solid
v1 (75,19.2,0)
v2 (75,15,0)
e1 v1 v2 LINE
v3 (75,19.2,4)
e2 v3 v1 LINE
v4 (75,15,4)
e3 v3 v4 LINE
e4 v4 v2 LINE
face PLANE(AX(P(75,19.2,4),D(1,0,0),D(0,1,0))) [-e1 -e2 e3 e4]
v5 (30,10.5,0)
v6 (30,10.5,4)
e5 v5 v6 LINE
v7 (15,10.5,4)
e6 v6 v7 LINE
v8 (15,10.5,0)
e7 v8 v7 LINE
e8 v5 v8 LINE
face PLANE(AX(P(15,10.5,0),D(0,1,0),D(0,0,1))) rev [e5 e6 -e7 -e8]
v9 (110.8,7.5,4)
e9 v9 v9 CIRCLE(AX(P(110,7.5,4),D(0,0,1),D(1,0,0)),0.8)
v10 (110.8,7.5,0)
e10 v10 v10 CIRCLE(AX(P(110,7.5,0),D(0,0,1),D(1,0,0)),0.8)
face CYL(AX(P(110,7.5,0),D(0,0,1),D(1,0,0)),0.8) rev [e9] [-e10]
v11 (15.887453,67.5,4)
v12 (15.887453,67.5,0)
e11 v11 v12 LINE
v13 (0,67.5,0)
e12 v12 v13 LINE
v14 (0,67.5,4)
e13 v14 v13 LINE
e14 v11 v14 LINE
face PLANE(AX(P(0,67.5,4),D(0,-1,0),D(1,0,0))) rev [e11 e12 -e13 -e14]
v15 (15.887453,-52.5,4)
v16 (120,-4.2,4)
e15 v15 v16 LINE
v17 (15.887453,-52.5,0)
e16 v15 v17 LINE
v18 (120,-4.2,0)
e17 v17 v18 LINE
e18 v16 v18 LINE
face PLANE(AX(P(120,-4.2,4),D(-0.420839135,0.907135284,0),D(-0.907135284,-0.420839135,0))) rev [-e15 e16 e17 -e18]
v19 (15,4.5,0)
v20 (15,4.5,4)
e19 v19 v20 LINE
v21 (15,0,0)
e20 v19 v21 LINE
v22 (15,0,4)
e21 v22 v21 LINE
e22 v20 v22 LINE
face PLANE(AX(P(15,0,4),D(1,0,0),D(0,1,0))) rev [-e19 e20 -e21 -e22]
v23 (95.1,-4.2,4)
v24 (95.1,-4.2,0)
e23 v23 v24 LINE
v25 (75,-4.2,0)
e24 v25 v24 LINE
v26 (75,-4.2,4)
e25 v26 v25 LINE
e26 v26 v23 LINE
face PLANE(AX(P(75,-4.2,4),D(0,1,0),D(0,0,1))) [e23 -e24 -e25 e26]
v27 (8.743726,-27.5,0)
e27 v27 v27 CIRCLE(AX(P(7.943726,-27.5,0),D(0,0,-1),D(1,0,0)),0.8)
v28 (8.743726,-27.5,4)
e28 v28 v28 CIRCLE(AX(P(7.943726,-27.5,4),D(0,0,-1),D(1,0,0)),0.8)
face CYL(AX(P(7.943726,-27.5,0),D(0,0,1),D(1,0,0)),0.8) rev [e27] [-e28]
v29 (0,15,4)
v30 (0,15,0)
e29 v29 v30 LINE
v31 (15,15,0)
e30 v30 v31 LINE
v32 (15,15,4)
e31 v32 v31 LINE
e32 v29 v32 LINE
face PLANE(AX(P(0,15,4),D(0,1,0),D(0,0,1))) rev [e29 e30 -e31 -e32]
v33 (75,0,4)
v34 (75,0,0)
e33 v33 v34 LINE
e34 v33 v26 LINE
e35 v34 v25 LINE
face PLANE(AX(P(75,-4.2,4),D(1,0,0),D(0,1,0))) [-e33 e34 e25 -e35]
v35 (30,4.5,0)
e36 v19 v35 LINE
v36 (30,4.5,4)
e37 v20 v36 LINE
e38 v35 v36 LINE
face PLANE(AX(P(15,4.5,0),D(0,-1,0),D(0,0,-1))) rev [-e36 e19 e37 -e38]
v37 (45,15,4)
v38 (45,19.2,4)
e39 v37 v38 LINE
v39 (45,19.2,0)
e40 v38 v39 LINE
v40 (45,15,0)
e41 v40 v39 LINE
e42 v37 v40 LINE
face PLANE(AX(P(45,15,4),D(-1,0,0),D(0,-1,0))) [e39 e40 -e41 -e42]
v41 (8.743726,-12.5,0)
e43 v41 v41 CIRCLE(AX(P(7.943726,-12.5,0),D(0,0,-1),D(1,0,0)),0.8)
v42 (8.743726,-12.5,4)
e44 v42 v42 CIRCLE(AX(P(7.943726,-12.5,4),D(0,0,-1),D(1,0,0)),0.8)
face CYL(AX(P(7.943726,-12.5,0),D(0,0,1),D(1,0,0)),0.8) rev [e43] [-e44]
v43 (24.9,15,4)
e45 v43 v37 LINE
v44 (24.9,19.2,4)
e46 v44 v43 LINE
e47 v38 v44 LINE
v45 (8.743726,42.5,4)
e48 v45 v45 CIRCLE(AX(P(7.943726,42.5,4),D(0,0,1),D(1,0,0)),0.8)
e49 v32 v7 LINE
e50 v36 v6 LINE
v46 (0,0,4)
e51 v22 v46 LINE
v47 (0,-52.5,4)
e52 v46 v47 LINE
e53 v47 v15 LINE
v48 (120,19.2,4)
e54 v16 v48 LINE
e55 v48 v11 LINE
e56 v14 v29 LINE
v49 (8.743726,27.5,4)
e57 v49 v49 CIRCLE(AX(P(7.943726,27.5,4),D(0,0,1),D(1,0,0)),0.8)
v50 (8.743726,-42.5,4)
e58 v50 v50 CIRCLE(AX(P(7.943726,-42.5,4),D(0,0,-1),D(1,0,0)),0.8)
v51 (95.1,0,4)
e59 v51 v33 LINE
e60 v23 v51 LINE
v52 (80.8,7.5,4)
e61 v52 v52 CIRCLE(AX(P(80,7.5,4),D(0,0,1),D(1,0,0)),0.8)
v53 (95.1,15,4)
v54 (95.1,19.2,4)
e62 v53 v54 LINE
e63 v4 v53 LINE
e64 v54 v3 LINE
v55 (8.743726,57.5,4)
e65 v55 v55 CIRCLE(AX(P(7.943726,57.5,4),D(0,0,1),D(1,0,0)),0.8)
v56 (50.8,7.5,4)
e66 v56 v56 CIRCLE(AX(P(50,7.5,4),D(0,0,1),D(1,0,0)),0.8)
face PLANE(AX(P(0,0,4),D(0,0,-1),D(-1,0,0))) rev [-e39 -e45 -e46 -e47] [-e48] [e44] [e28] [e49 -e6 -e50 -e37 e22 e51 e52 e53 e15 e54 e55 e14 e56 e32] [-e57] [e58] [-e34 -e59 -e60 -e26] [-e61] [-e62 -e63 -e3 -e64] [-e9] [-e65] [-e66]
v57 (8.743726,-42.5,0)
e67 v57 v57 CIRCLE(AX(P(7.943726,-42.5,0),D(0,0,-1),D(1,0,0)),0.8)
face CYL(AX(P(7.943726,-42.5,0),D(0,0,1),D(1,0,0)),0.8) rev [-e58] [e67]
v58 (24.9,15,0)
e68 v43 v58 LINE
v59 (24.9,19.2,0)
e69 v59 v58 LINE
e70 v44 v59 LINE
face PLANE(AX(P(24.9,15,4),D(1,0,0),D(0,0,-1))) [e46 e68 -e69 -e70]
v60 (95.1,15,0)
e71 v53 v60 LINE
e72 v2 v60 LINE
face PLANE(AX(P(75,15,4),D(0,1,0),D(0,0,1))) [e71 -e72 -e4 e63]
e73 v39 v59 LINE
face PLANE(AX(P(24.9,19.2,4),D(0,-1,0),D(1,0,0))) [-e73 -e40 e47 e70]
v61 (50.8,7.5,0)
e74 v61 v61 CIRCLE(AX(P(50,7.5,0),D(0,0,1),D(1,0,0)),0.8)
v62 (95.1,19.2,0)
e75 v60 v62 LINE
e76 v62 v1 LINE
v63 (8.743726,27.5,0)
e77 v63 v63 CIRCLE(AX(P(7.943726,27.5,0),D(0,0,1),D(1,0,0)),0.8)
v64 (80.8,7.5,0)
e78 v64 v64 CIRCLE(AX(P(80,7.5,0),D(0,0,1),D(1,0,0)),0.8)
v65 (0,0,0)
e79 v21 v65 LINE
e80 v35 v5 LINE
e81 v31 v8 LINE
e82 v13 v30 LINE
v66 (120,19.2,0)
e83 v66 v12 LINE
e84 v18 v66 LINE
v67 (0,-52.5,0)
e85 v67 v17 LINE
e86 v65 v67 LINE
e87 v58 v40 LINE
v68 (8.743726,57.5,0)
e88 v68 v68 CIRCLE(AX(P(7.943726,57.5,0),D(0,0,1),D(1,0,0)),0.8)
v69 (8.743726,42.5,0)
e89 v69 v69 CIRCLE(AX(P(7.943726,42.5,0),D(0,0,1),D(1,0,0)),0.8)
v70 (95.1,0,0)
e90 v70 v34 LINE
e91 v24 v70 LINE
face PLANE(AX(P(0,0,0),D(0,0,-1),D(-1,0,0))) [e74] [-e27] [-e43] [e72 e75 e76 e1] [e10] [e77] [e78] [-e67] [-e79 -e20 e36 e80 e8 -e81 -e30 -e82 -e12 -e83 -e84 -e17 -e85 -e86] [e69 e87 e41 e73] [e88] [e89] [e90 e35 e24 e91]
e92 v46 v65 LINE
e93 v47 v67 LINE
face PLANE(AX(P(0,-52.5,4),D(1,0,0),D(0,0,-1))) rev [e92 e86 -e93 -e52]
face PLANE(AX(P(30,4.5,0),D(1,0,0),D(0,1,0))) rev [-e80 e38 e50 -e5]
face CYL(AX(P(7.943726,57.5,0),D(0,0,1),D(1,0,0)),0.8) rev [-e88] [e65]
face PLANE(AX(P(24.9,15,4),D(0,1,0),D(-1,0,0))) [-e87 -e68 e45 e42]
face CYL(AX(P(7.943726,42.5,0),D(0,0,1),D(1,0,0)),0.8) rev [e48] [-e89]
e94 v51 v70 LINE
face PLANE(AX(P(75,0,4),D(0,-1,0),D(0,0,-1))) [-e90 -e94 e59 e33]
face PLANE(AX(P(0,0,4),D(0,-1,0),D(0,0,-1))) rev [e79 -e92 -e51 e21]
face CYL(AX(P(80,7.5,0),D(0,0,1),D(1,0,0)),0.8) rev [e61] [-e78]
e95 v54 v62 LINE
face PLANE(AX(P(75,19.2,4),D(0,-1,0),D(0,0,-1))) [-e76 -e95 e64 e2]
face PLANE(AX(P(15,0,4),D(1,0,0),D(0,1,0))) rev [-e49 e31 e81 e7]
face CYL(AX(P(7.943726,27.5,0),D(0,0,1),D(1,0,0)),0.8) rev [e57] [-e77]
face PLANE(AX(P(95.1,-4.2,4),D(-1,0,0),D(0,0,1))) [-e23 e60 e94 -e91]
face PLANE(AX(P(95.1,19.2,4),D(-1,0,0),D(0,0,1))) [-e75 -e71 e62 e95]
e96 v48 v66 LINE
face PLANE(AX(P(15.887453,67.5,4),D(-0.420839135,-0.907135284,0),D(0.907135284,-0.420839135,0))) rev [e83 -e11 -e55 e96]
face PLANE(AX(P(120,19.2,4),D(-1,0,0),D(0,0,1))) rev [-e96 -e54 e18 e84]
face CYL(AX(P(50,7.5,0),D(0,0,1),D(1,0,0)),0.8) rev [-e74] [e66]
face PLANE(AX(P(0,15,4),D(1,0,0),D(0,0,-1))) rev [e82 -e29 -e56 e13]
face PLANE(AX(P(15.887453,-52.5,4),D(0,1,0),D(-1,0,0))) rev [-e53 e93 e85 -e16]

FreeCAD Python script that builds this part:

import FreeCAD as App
import Part
import Sketcher

V = App.Vector


def add_polygon(sketch, points):
    """Adds a closed chain of lines whose ends are joined by coincident constraints."""
    first, n = sketch.GeometryCount, len(points)
    for a, b in zip(points, points[1:] + points[:1]):
        sketch.addGeometry(Part.LineSegment(App.Vector(*a, 0), App.Vector(*b, 0)), False)
    for i in range(n):
        sketch.addConstraint(Sketcher.Constraint("Coincident", first + i, 2, first + (i + 1) % n, 1))

doc = App.newDocument("Part")
body = doc.addObject("PartDesign::Body", "Body")

# Sketch on XY plane
sketch1 = body.newObject("Sketcher::SketchObject", "Sketch")
sketch1.AttachmentSupport = (doc.getObject("XY_Plane"), [""])
sketch1.MapMode = "FlatFace"
add_polygon(sketch1, [(0, 67.5), (0, 15), (15, 15), (15, 0), (0, 0), (0, -52.5), (15.887453, -52.5), (120, -4.2), (120, 19.2), (15.887453, 67.5)])  # lines 0-9
add_polygon(sketch1, [(75, -4.2), (75, 0), (95.1, 0), (95.1, -4.2)])  # lines 10-13
add_polygon(sketch1, [(75, 15), (75, 19.2), (95.1, 19.2), (95.1, 15)])  # lines 14-17
add_polygon(sketch1, [(24.9, 15), (24.9, 19.2), (45, 19.2), (45, 15)])  # lines 18-21
sketch1.addConstraint(Sketcher.Constraint("Vertical", 0))
sketch1.addConstraint(Sketcher.Constraint("Horizontal", 1))
sketch1.addConstraint(Sketcher.Constraint("Vertical", 2))
sketch1.addConstraint(Sketcher.Constraint("Horizontal", 3))
sketch1.addConstraint(Sketcher.Constraint("Vertical", 4))
sketch1.addConstraint(Sketcher.Constraint("Horizontal", 5))
sketch1.addConstraint(Sketcher.Constraint("Vertical", 7))
sketch1.addConstraint(Sketcher.Constraint("Horizontal", 9))
sketch1.addConstraint(Sketcher.Constraint("Vertical", 10))
sketch1.addConstraint(Sketcher.Constraint("Horizontal", 11))
sketch1.addConstraint(Sketcher.Constraint("Vertical", 12))
sketch1.addConstraint(Sketcher.Constraint("Horizontal", 13))
sketch1.addConstraint(Sketcher.Constraint("Vertical", 14))
sketch1.addConstraint(Sketcher.Constraint("Horizontal", 15))
sketch1.addConstraint(Sketcher.Constraint("Vertical", 16))
sketch1.addConstraint(Sketcher.Constraint("Horizontal", 17))
sketch1.addConstraint(Sketcher.Constraint("Vertical", 18))
sketch1.addConstraint(Sketcher.Constraint("Horizontal", 19))
sketch1.addConstraint(Sketcher.Constraint("Vertical", 20))
sketch1.addConstraint(Sketcher.Constraint("Horizontal", 21))
sketch1.addConstraint(Sketcher.Constraint("Coincident", 3, 2, -1, 1))
sketch1.addConstraint(Sketcher.Constraint("PointOnObject", 0, 2, -2))
sketch1.addConstraint(Sketcher.Constraint("PointOnObject", 10, 2, -1))
sketch1.addConstraint(Sketcher.Constraint("Horizontal", 6, 2, 12, 2))
sketch1.addConstraint(Sketcher.Constraint("Horizontal", 7, 2, 14, 2))
sketch1.addConstraint(Sketcher.Constraint("Horizontal", 1, 2, 16, 2))
sketch1.addConstraint(Sketcher.Constraint("Horizontal", 15, 2, 18, 2))
sketch1.addConstraint(Sketcher.Constraint("Horizontal", 17, 2, 20, 2))
sketch1.addConstraint(Sketcher.Constraint("Vertical", 5, 2, 8, 2))
sketch1.addConstraint(Sketcher.Constraint("Vertical", 13, 2, 14, 2))
sketch1.addConstraint(Sketcher.Constraint("Vertical", 12, 2, 15, 2))
sketch1.addConstraint(Sketcher.Constraint("Equal", 17, 19))
sketch1.addConstraint(Sketcher.Constraint("Equal", 3, 2))
sketch1.addConstraint(Sketcher.Constraint("Equal", 0, 4))
sketch1.addConstraint(Sketcher.Constraint("Equal", 12, 14))
sketch1.addConstraint(Sketcher.Constraint("DistanceX", 1, 1, 1, 2, 15.0))
sketch1.addConstraint(Sketcher.Constraint("DistanceX", 11, 1, 11, 2, 20.1))
sketch1.addConstraint(Sketcher.Constraint("DistanceY", 0, 2, 0, 1, 52.5))
sketch1.addConstraint(Sketcher.Constraint("DistanceY", 7, 1, 7, 2, 23.4))
sketch1.addConstraint(Sketcher.Constraint("DistanceX", -1, 1, 6, 2, 120.0))
sketch1.addConstraint(Sketcher.Constraint("DistanceX", -1, 1, 10, 2, 75.0))
sketch1.addConstraint(Sketcher.Constraint("DistanceX", -1, 1, 19, 2, 45.0))
sketch1.addConstraint(Sketcher.Constraint("DistanceX", 5, 1, 5, 2, 15.887453))
pad1 = body.newObject("PartDesign::Pad", "Pad")
pad1.Profile = sketch1
pad1.Length = 4

# Sketch on XY plane
sketch2 = body.newObject("Sketcher::SketchObject", "Sketch001")
sketch2.AttachmentSupport = (doc.getObject("XY_Plane"), [""])
sketch2.MapMode = "FlatFace"
sketch2.AttachmentOffset = App.Placement(V(0, 0, 4), App.Rotation())
sketch2.addGeometry(Part.Circle(V(7.943726, 57.5, 0), V(0, 0, 1), 0.8), False)
sketch2.addConstraint(Sketcher.Constraint("Diameter", 0, 1.6))
sketch2.addConstraint(Sketcher.Constraint("DistanceY", -1, 1, 0, 3, 57.5))
sketch2.addConstraint(Sketcher.Constraint("DistanceX", -1, 1, 0, 3, 7.943726))
pocket1 = body.newObject("PartDesign::Pocket", "Pocket")
pocket1.Profile = sketch2
pocket1.Length = 4
doc.recompute()

linearpattern = body.newObject("PartDesign::LinearPattern", "LinearPattern")
linearpattern.Originals = [pocket1]
linearpattern.Direction = (doc.getObject("Y_Axis"), [""])
linearpattern.Mode = "offset"
linearpattern.Offset = 15
linearpattern.Occurrences = 3
linearpattern.Reversed = True
body.Tip = linearpattern
doc.recompute()

datumplane = body.newObject("PartDesign::Plane", "DatumPlane")
datumplane.AttachmentSupport = (doc.getObject("XZ_Plane"), [""])
datumplane.MapMode = "FlatFace"
datumplane.AttachmentOffset = App.Placement(V(0, 0, -7.5), App.Rotation())
mirrored = body.newObject("PartDesign::Mirrored", "Mirrored")
mirrored.Originals = [pocket1]
mirrored.MirrorPlane = (datumplane, [""])
body.Tip = mirrored

# Sketch on XY plane
sketch3 = body.newObject("Sketcher::SketchObject", "Sketch002")
sketch3.AttachmentSupport = (doc.getObject("XY_Plane"), [""])
sketch3.MapMode = "FlatFace"
sketch3.AttachmentOffset = App.Placement(V(0, 0, 4), App.Rotation())
sketch3.addGeometry(Part.Circle(V(7.943726, -27.5, 0), V(0, 0, 1), 0.8), False)
sketch3.addConstraint(Sketcher.Constraint("Diameter", 0, 1.6))
sketch3.addConstraint(Sketcher.Constraint("DistanceY", 0, 3, -1, 1, 27.5))
sketch3.addConstraint(Sketcher.Constraint("DistanceX", -1, 1, 0, 3, 7.943726))
pocket2 = body.newObject("PartDesign::Pocket", "Pocket001")
pocket2.Profile = sketch3
pocket2.Length = 4

# Sketch on XY plane
sketch4 = body.newObject("Sketcher::SketchObject", "Sketch003")
sketch4.AttachmentSupport = (doc.getObject("XY_Plane"), [""])
sketch4.MapMode = "FlatFace"
sketch4.AttachmentOffset = App.Placement(V(0, 0, 4), App.Rotation())
sketch4.addGeometry(Part.Circle(V(7.943726, -12.5, 0), V(0, 0, 1), 0.8), False)
sketch4.addConstraint(Sketcher.Constraint("Diameter", 0, 1.6))
sketch4.addConstraint(Sketcher.Constraint("DistanceY", 0, 3, -1, 1, 12.5))
sketch4.addConstraint(Sketcher.Constraint("DistanceX", -1, 1, 0, 3, 7.943726))
pocket3 = body.newObject("PartDesign::Pocket", "Pocket002")
pocket3.Profile = sketch4
pocket3.Length = 4

# Sketch on XY plane
sketch5 = body.newObject("Sketcher::SketchObject", "Sketch004")
sketch5.AttachmentSupport = (doc.getObject("XY_Plane"), [""])
sketch5.MapMode = "FlatFace"
sketch5.AttachmentOffset = App.Placement(V(0, 0, 4), App.Rotation())
sketch5.addGeometry(Part.Circle(V(110, 7.5, 0), V(0, 0, 1), 0.8), False)
sketch5.addConstraint(Sketcher.Constraint("Diameter", 0, 1.6))
sketch5.addConstraint(Sketcher.Constraint("DistanceX", -1, 1, 0, 3, 110.0))
sketch5.addConstraint(Sketcher.Constraint("DistanceY", -1, 1, 0, 3, 7.5))
pocket4 = body.newObject("PartDesign::Pocket", "Pocket003")
pocket4.Profile = sketch5
pocket4.Length = 4
doc.recompute()

linearpattern2 = body.newObject("PartDesign::LinearPattern", "LinearPattern001")
linearpattern2.Originals = [pocket4]
linearpattern2.Direction = (doc.getObject("X_Axis"), [""])
linearpattern2.Mode = "offset"
linearpattern2.Offset = 30
linearpattern2.Occurrences = 5
linearpattern2.Reversed = True
body.Tip = linearpattern2

# Sketch on XY plane
sketch6 = body.newObject("Sketcher::SketchObject", "Sketch005")
sketch6.AttachmentSupport = (doc.getObject("XY_Plane"), [""])
sketch6.MapMode = "FlatFace"
sketch6.AttachmentOffset = App.Placement(V(0, 0, 4), App.Rotation())
add_polygon(sketch6, [(15, 10.5), (15, 4.5), (30, 4.5), (30, 10.5)])  # lines 0-3
sketch6.addConstraint(Sketcher.Constraint("Vertical", 0))
sketch6.addConstraint(Sketcher.Constraint("Horizontal", 1))
sketch6.addConstraint(Sketcher.Constraint("Vertical", 2))
sketch6.addConstraint(Sketcher.Constraint("Horizontal", 3))
sketch6.addConstraint(Sketcher.Constraint("DistanceX", 1, 1, 1, 2, 15.0))
sketch6.addConstraint(Sketcher.Constraint("DistanceY", 0, 2, 0, 1, 6.0))
sketch6.addConstraint(Sketcher.Constraint("DistanceX", -1, 1, 0, 2, 15.0))
sketch6.addConstraint(Sketcher.Constraint("DistanceY", -1, 1, 0, 2, 4.5))
pocket5 = body.newObject("PartDesign::Pocket", "Pocket004")
pocket5.Profile = sketch6
pocket5.Length = 4

doc.recompute()
